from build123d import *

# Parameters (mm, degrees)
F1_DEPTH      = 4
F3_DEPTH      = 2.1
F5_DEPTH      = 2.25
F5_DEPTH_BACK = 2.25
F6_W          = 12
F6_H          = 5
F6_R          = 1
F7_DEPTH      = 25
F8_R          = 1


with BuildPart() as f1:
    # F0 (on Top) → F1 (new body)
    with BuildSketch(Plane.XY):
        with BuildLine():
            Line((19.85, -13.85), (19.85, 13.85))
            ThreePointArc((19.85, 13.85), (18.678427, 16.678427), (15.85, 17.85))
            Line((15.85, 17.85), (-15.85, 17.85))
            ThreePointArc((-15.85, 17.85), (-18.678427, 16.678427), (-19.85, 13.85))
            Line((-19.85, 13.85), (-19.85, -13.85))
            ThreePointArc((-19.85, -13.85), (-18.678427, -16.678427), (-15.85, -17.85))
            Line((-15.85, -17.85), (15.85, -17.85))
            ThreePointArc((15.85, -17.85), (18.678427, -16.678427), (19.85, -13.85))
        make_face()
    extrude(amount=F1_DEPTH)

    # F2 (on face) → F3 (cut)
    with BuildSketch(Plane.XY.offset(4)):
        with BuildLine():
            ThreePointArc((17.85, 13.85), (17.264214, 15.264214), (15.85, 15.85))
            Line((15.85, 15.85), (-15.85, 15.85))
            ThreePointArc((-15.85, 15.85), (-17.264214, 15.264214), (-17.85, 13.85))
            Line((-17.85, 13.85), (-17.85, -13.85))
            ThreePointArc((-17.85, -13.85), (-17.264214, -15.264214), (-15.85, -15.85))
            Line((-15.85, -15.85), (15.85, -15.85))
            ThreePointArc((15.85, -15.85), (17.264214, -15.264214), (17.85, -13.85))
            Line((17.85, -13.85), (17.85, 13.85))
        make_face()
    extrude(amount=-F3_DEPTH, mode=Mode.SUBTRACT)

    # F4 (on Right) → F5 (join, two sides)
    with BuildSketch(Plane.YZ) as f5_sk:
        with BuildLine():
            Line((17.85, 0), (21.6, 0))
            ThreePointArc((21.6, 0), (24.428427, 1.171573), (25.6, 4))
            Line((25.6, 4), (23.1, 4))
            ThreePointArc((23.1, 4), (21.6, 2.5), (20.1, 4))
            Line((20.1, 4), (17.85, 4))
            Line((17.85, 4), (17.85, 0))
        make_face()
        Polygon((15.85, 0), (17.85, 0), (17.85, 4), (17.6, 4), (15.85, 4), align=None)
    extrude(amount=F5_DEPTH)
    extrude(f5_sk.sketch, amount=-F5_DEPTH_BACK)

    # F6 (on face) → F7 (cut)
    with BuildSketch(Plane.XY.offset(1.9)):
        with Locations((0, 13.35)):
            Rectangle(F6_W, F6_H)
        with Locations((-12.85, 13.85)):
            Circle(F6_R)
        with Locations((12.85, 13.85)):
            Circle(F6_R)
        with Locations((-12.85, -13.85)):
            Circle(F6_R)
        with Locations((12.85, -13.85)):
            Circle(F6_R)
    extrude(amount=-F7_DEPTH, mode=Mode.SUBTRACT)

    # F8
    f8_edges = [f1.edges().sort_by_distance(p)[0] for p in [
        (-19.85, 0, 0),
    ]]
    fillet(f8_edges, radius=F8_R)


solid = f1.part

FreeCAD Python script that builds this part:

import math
import FreeCAD as App
import Part
import Sketcher
Q = App.Units.Quantity


def edges_at(feature, points):
    """Names of the edges that pass closest to the given points."""
    edges = feature.Shape.Edges
    near = lambda p: min(range(len(edges)), key=lambda i: edges[i].distToShape(Part.Vertex(*p))[0])
    return sorted({f"Edge{near(p) + 1}" for p in points})

doc = App.newDocument("Part")
params = doc.addObject("Spreadsheet::Sheet", "Params")
for row, (alias, value) in enumerate([
    ("sketch1_radius", "4 mm"),
    ("sketch1_width", "31.7 mm"),
    ("sketch1_height", "27.7 mm"),
    ("pad1_length", "4 mm"),
    ("sketch2_radius", "1.999999 mm"),
    ("sketch2_width", "31.7 mm"),
    ("sketch2_height", "27.7 mm"),
    ("pocket1_length", "2.1 mm"),
    ("sketch3_radius", "4 mm"),
    ("sketch3_radius2", "1.5 mm"),
    ("sketch3_width", "4.25 mm"),
    ("pad2_length", "2.25 mm"),
    ("pad2_length2", "2.25 mm"),
    ("sketch4_diameter", "2 mm"),
    ("sketch4_width", "12 mm"),
    ("sketch4_height", "5 mm"),
    ("pocket2_length", "25 mm"),
    ("fillet_radius", "1 mm"),
], start=1):
    params.set(f"A{row}", alias)
    params.set(f"B{row}", "=" + value)
    params.setAlias(f"B{row}", alias)

body = doc.addObject("PartDesign::Body", "Body")

# Sketch on XY plane
sketch1 = body.newObject("Sketcher::SketchObject", "Sketch")
sketch1.AttachmentSupport = (doc.getObject("XY_Plane"), [""])
sketch1.MapMode = "FlatFace"
sketch1.addGeometry([
    Part.LineSegment(App.Vector(19.85, -13.85, 0), App.Vector(19.85, 13.85, 0)),  # 0
    Part.ArcOfCircle(Part.Circle(App.Vector(15.85, 13.85, 0), App.Vector(0, 0, 1), 4), math.radians(0.000006), math.radians(89.999994)),  # 1
    Part.LineSegment(App.Vector(15.85, 17.85, 0), App.Vector(-15.85, 17.85, 0)),  # 2
    Part.ArcOfCircle(Part.Circle(App.Vector(-15.85, 13.85, 0), App.Vector(0, 0, 1), 4), math.radians(90.000006), math.radians(179.999994)),  # 3
    Part.LineSegment(App.Vector(-19.85, 13.85, 0), App.Vector(-19.85, -13.85, 0)),  # 4
    Part.ArcOfCircle(Part.Circle(App.Vector(-15.85, -13.85, 0), App.Vector(0, 0, 1), 4), math.radians(-179.999994), math.radians(-90.000006)),  # 5
    Part.LineSegment(App.Vector(-15.85, -17.85, 0), App.Vector(15.85, -17.85, 0)),  # 6
    Part.ArcOfCircle(Part.Circle(App.Vector(15.85, -13.85, 0), App.Vector(0, 0, 1), 4), math.radians(-89.999994), math.radians(-0.000006)),  # 7
], False)
sketch1.addConstraint([
    Sketcher.Constraint("Tangent", 0, 2, 1, 1),
    Sketcher.Constraint("Tangent", 1, 2, 2, 1),
    Sketcher.Constraint("Tangent", 2, 2, 3, 1),
    Sketcher.Constraint("Tangent", 3, 2, 4, 1),
    Sketcher.Constraint("Tangent", 4, 2, 5, 1),
    Sketcher.Constraint("Tangent", 5, 2, 6, 1),
    Sketcher.Constraint("Tangent", 6, 2, 7, 1),
    Sketcher.Constraint("Tangent", 7, 2, 0, 1),
    Sketcher.Constraint("Vertical", 0),
    Sketcher.Constraint("Horizontal", 2),
    Sketcher.Constraint("Vertical", 4),
    Sketcher.Constraint("Horizontal", 6),
    Sketcher.Constraint("Equal", 1, 3),
    Sketcher.Constraint("Equal", 3, 5),
    Sketcher.Constraint("Equal", 5, 7),
    Sketcher.Constraint("Symmetric", 1, 3, 5, 3, -1, 1),
    Sketcher.Constraint("Radius", 1, Q("4 mm")),
    Sketcher.Constraint("DistanceX", 2, 2, 2, 1, Q("31.7 mm")),
    Sketcher.Constraint("DistanceY", 0, 1, 0, 2, Q("27.7 mm")),
])
sketch1.setExpression("Constraints[16]", "Params.sketch1_radius")
sketch1.setExpression("Constraints[17]", "Params.sketch1_width")
sketch1.setExpression("Constraints[18]", "Params.sketch1_height")
pad1 = body.newObject("PartDesign::Pad", "Pad")
pad1.Profile = sketch1
pad1.setExpression("Length", "Params.pad1_length")

# Sketch on XY plane
sketch2 = body.newObject("Sketcher::SketchObject", "Sketch001")
sketch2.AttachmentSupport = (doc.getObject("XY_Plane"), [""])
sketch2.MapMode = "FlatFace"
sketch2.AttachmentOffset = App.Placement(App.Vector(0, 0, 4), App.Rotation())
sketch2.addGeometry([
    Part.ArcOfCircle(Part.Circle(App.Vector(15.850001, 13.850001, 0), App.Vector(0, 0, 1), 1.999999), math.radians(-0.000043), math.radians(90.000043)),  # 0
    Part.LineSegment(App.Vector(15.85, 15.85, 0), App.Vector(-15.85, 15.85, 0)),  # 1
    Part.ArcOfCircle(Part.Circle(App.Vector(-15.850001, 13.850001, 0), App.Vector(0, 0, 1), 1.999999), math.radians(89.999957), math.radians(180.000043)),  # 2
    Part.LineSegment(App.Vector(-17.85, 13.85, 0), App.Vector(-17.85, -13.85, 0)),  # 3
    Part.ArcOfCircle(Part.Circle(App.Vector(-15.850001, -13.850001, 0), App.Vector(0, 0, 1), 1.999999), math.radians(179.999957), math.radians(270.000043)),  # 4
    Part.LineSegment(App.Vector(-15.85, -15.85, 0), App.Vector(15.85, -15.85, 0)),  # 5
    Part.ArcOfCircle(Part.Circle(App.Vector(15.850001, -13.850001, 0), App.Vector(0, 0, 1), 1.999999), math.radians(-90.000043), math.radians(0.000043)),  # 6
    Part.LineSegment(App.Vector(17.85, -13.85, 0), App.Vector(17.85, 13.85, 0)),  # 7
], False)
sketch2.addConstraint([
    Sketcher.Constraint("Tangent", 0, 2, 1, 1),
    Sketcher.Constraint("Tangent", 1, 2, 2, 1),
    Sketcher.Constraint("Tangent", 2, 2, 3, 1),
    Sketcher.Constraint("Tangent", 3, 2, 4, 1),
    Sketcher.Constraint("Tangent", 4, 2, 5, 1),
    Sketcher.Constraint("Tangent", 5, 2, 6, 1),
    Sketcher.Constraint("Tangent", 6, 2, 7, 1),
    Sketcher.Constraint("Tangent", 7, 2, 0, 1),
    Sketcher.Constraint("Horizontal", 1),
    Sketcher.Constraint("Vertical", 3),
    Sketcher.Constraint("Horizontal", 5),
    Sketcher.Constraint("Vertical", 7),
    Sketcher.Constraint("Equal", 0, 2),
    Sketcher.Constraint("Equal", 2, 4),
    Sketcher.Constraint("Equal", 4, 6),
    Sketcher.Constraint("Symmetric", 0, 3, 4, 3, -1, 1),
    Sketcher.Constraint("Radius", 0, Q("1.999999 mm")),
    Sketcher.Constraint("DistanceX", 1, 2, 1, 1, Q("31.7 mm")),
    Sketcher.Constraint("DistanceY", 3, 2, 3, 1, Q("27.7 mm")),
])
sketch2.setExpression("Constraints[16]", "Params.sketch2_radius")
sketch2.setExpression("Constraints[17]", "Params.sketch2_width")
sketch2.setExpression("Constraints[18]", "Params.sketch2_height")
pocket1 = body.newObject("PartDesign::Pocket", "Pocket")
pocket1.Profile = sketch2
pocket1.setExpression("Length", "Params.pocket1_length")

# Sketch on YZ plane
sketch3 = body.newObject("Sketcher::SketchObject", "Sketch002")
sketch3.AttachmentSupport = (doc.getObject("YZ_Plane"), [""])
sketch3.MapMode = "FlatFace"
sketch3.addGeometry([
    Part.ArcOfCircle(Part.Circle(App.Vector(21.6, 4, 0), App.Vector(0, 0, 1), 4), math.radians(-89.999994), math.radians(-0.000006)),  # 0
    Part.LineSegment(App.Vector(25.6, 4, 0), App.Vector(23.1, 4, 0)),  # 1
    Part.ArcOfCircle(Part.Circle(App.Vector(21.6, 4, 0), App.Vector(0, 0, 1), 1.5), math.radians(180), math.radians(360)),  # 2
    Part.LineSegment(App.Vector(20.1, 4, 0), App.Vector(15.85, 4, 0)),  # 3
    Part.LineSegment(App.Vector(15.85, 4, 0), App.Vector(15.85, 0, 0)),  # 4
    Part.LineSegment(App.Vector(15.85, 0, 0), App.Vector(21.6, 0, 0)),  # 5
], False)
sketch3.addConstraint([
    Sketcher.Constraint("Coincident", 0, 2, 1, 1),
    Sketcher.Constraint("Coincident", 1, 2, 2, 2),
    Sketcher.Constraint("Coincident", 2, 1, 3, 1),
    Sketcher.Constraint("Coincident", 3, 2, 4, 1),
    Sketcher.Constraint("Coincident", 4, 2, 5, 1),
    Sketcher.Constraint("Tangent", 5, 2, 0, 1),
    Sketcher.Constraint("Horizontal", 1),
    Sketcher.Constraint("Horizontal", 3),
    Sketcher.Constraint("Vertical", 4),
    Sketcher.Constraint("Horizontal", 5),
    Sketcher.Constraint("Coincident", 2, 3, 0, 3),
    Sketcher.Constraint("PointOnObject", 4, 2, -1),
    Sketcher.Constraint("Horizontal", 2, 3, 0, 2),
    Sketcher.Constraint("Horizontal", 1, 2, 2, 1),
    Sketcher.Constraint("Radius", 0, Q("4 mm")),
    Sketcher.Constraint("Radius", 2, Q("1.5 mm")),
    Sketcher.Constraint("DistanceX", 3, 2, 3, 1, Q("4.25 mm")),
    Sketcher.Constraint("DistanceX", -1, 1, 0, 3, Q("21.6 mm")),
])
sketch3.setExpression("Constraints[14]", "Params.sketch3_radius")
sketch3.setExpression("Constraints[15]", "Params.sketch3_radius2")
sketch3.setExpression("Constraints[16]", "Params.sketch3_width")
pad2 = body.newObject("PartDesign::Pad", "Pad001")
pad2.Profile = sketch3
pad2.Type = "TwoLengths"
pad2.setExpression("Length", "Params.pad2_length")
pad2.setExpression("Length2", "Params.pad2_length2")

# Sketch on XY plane
sketch4 = body.newObject("Sketcher::SketchObject", "Sketch003")
sketch4.AttachmentSupport = (doc.getObject("XY_Plane"), [""])
sketch4.MapMode = "FlatFace"
sketch4.AttachmentOffset = App.Placement(App.Vector(0, 0, 1.9), App.Rotation())
sketch4.addGeometry([
    Part.LineSegment(App.Vector(-6, 15.85, 0), App.Vector(-6, 10.85, 0)),  # 0
    Part.LineSegment(App.Vector(-6, 10.85, 0), App.Vector(6, 10.85, 0)),  # 1
    Part.LineSegment(App.Vector(6, 10.85, 0), App.Vector(6, 15.85, 0)),  # 2
    Part.LineSegment(App.Vector(6, 15.85, 0), App.Vector(-6, 15.85, 0)),  # 3
    Part.Circle(App.Vector(-12.85, 13.85, 0), App.Vector(0, 0, 1), 1),  # 4
    Part.Circle(App.Vector(12.85, 13.85, 0), App.Vector(0, 0, 1), 1),  # 5
    Part.Circle(App.Vector(-12.85, -13.85, 0), App.Vector(0, 0, 1), 1),  # 6
    Part.Circle(App.Vector(12.85, -13.85, 0), App.Vector(0, 0, 1), 1),  # 7
], False)
sketch4.addConstraint([
    Sketcher.Constraint("Coincident", 0, 2, 1, 1),
    Sketcher.Constraint("Coincident", 1, 2, 2, 1),
    Sketcher.Constraint("Coincident", 2, 2, 3, 1),
    Sketcher.Constraint("Coincident", 3, 2, 0, 1),
    Sketcher.Constraint("Vertical", 0),
    Sketcher.Constraint("Horizontal", 1),
    Sketcher.Constraint("Vertical", 2),
    Sketcher.Constraint("Horizontal", 3),
    Sketcher.Constraint("Equal", 4, 5),
    Sketcher.Constraint("Equal", 5, 6),
    Sketcher.Constraint("Equal", 6, 7),
    Sketcher.Constraint("Symmetric", 5, 3, 6, 3, -1, 1),
    Sketcher.Constraint("Symmetric", 4, 3, 7, 3, -1, 1),
    Sketcher.Constraint("Symmetric", 4, 3, 5, 3, -2),
    Sketcher.Constraint("Diameter", 4, Q("2 mm")),
    Sketcher.Constraint("DistanceX", 1, 1, 1, 2, Q("12 mm")),
    Sketcher.Constraint("DistanceY", 0, 2, 0, 1, Q("5 mm")),
    Sketcher.Constraint("DistanceX", 0, 2, -1, 1, Q("6 mm")),
    Sketcher.Constraint("DistanceY", 0, 2, 4, 3, Q("3 mm")),
    Sketcher.Constraint("DistanceX", 4, 3, 5, 3, Q("25.7 mm")),
    Sketcher.Constraint("DistanceY", 6, 3, 4, 3, Q("27.7 mm")),
])
sketch4.setExpression("Constraints[14]", "Params.sketch4_diameter")
sketch4.setExpression("Constraints[15]", "Params.sketch4_width")
sketch4.setExpression("Constraints[16]", "Params.sketch4_height")
pocket2 = body.newObject("PartDesign::Pocket", "Pocket001")
pocket2.Profile = sketch4
pocket2.setExpression("Length", "Params.pocket2_length")
doc.recompute()

fillet = body.newObject("PartDesign::Fillet", "Fillet")
fillet.Base = (pocket2, edges_at(pocket2, [(-19.85, 0, 0)]))
fillet.setExpression("Radius", "Params.fillet_radius")

doc.recompute()
